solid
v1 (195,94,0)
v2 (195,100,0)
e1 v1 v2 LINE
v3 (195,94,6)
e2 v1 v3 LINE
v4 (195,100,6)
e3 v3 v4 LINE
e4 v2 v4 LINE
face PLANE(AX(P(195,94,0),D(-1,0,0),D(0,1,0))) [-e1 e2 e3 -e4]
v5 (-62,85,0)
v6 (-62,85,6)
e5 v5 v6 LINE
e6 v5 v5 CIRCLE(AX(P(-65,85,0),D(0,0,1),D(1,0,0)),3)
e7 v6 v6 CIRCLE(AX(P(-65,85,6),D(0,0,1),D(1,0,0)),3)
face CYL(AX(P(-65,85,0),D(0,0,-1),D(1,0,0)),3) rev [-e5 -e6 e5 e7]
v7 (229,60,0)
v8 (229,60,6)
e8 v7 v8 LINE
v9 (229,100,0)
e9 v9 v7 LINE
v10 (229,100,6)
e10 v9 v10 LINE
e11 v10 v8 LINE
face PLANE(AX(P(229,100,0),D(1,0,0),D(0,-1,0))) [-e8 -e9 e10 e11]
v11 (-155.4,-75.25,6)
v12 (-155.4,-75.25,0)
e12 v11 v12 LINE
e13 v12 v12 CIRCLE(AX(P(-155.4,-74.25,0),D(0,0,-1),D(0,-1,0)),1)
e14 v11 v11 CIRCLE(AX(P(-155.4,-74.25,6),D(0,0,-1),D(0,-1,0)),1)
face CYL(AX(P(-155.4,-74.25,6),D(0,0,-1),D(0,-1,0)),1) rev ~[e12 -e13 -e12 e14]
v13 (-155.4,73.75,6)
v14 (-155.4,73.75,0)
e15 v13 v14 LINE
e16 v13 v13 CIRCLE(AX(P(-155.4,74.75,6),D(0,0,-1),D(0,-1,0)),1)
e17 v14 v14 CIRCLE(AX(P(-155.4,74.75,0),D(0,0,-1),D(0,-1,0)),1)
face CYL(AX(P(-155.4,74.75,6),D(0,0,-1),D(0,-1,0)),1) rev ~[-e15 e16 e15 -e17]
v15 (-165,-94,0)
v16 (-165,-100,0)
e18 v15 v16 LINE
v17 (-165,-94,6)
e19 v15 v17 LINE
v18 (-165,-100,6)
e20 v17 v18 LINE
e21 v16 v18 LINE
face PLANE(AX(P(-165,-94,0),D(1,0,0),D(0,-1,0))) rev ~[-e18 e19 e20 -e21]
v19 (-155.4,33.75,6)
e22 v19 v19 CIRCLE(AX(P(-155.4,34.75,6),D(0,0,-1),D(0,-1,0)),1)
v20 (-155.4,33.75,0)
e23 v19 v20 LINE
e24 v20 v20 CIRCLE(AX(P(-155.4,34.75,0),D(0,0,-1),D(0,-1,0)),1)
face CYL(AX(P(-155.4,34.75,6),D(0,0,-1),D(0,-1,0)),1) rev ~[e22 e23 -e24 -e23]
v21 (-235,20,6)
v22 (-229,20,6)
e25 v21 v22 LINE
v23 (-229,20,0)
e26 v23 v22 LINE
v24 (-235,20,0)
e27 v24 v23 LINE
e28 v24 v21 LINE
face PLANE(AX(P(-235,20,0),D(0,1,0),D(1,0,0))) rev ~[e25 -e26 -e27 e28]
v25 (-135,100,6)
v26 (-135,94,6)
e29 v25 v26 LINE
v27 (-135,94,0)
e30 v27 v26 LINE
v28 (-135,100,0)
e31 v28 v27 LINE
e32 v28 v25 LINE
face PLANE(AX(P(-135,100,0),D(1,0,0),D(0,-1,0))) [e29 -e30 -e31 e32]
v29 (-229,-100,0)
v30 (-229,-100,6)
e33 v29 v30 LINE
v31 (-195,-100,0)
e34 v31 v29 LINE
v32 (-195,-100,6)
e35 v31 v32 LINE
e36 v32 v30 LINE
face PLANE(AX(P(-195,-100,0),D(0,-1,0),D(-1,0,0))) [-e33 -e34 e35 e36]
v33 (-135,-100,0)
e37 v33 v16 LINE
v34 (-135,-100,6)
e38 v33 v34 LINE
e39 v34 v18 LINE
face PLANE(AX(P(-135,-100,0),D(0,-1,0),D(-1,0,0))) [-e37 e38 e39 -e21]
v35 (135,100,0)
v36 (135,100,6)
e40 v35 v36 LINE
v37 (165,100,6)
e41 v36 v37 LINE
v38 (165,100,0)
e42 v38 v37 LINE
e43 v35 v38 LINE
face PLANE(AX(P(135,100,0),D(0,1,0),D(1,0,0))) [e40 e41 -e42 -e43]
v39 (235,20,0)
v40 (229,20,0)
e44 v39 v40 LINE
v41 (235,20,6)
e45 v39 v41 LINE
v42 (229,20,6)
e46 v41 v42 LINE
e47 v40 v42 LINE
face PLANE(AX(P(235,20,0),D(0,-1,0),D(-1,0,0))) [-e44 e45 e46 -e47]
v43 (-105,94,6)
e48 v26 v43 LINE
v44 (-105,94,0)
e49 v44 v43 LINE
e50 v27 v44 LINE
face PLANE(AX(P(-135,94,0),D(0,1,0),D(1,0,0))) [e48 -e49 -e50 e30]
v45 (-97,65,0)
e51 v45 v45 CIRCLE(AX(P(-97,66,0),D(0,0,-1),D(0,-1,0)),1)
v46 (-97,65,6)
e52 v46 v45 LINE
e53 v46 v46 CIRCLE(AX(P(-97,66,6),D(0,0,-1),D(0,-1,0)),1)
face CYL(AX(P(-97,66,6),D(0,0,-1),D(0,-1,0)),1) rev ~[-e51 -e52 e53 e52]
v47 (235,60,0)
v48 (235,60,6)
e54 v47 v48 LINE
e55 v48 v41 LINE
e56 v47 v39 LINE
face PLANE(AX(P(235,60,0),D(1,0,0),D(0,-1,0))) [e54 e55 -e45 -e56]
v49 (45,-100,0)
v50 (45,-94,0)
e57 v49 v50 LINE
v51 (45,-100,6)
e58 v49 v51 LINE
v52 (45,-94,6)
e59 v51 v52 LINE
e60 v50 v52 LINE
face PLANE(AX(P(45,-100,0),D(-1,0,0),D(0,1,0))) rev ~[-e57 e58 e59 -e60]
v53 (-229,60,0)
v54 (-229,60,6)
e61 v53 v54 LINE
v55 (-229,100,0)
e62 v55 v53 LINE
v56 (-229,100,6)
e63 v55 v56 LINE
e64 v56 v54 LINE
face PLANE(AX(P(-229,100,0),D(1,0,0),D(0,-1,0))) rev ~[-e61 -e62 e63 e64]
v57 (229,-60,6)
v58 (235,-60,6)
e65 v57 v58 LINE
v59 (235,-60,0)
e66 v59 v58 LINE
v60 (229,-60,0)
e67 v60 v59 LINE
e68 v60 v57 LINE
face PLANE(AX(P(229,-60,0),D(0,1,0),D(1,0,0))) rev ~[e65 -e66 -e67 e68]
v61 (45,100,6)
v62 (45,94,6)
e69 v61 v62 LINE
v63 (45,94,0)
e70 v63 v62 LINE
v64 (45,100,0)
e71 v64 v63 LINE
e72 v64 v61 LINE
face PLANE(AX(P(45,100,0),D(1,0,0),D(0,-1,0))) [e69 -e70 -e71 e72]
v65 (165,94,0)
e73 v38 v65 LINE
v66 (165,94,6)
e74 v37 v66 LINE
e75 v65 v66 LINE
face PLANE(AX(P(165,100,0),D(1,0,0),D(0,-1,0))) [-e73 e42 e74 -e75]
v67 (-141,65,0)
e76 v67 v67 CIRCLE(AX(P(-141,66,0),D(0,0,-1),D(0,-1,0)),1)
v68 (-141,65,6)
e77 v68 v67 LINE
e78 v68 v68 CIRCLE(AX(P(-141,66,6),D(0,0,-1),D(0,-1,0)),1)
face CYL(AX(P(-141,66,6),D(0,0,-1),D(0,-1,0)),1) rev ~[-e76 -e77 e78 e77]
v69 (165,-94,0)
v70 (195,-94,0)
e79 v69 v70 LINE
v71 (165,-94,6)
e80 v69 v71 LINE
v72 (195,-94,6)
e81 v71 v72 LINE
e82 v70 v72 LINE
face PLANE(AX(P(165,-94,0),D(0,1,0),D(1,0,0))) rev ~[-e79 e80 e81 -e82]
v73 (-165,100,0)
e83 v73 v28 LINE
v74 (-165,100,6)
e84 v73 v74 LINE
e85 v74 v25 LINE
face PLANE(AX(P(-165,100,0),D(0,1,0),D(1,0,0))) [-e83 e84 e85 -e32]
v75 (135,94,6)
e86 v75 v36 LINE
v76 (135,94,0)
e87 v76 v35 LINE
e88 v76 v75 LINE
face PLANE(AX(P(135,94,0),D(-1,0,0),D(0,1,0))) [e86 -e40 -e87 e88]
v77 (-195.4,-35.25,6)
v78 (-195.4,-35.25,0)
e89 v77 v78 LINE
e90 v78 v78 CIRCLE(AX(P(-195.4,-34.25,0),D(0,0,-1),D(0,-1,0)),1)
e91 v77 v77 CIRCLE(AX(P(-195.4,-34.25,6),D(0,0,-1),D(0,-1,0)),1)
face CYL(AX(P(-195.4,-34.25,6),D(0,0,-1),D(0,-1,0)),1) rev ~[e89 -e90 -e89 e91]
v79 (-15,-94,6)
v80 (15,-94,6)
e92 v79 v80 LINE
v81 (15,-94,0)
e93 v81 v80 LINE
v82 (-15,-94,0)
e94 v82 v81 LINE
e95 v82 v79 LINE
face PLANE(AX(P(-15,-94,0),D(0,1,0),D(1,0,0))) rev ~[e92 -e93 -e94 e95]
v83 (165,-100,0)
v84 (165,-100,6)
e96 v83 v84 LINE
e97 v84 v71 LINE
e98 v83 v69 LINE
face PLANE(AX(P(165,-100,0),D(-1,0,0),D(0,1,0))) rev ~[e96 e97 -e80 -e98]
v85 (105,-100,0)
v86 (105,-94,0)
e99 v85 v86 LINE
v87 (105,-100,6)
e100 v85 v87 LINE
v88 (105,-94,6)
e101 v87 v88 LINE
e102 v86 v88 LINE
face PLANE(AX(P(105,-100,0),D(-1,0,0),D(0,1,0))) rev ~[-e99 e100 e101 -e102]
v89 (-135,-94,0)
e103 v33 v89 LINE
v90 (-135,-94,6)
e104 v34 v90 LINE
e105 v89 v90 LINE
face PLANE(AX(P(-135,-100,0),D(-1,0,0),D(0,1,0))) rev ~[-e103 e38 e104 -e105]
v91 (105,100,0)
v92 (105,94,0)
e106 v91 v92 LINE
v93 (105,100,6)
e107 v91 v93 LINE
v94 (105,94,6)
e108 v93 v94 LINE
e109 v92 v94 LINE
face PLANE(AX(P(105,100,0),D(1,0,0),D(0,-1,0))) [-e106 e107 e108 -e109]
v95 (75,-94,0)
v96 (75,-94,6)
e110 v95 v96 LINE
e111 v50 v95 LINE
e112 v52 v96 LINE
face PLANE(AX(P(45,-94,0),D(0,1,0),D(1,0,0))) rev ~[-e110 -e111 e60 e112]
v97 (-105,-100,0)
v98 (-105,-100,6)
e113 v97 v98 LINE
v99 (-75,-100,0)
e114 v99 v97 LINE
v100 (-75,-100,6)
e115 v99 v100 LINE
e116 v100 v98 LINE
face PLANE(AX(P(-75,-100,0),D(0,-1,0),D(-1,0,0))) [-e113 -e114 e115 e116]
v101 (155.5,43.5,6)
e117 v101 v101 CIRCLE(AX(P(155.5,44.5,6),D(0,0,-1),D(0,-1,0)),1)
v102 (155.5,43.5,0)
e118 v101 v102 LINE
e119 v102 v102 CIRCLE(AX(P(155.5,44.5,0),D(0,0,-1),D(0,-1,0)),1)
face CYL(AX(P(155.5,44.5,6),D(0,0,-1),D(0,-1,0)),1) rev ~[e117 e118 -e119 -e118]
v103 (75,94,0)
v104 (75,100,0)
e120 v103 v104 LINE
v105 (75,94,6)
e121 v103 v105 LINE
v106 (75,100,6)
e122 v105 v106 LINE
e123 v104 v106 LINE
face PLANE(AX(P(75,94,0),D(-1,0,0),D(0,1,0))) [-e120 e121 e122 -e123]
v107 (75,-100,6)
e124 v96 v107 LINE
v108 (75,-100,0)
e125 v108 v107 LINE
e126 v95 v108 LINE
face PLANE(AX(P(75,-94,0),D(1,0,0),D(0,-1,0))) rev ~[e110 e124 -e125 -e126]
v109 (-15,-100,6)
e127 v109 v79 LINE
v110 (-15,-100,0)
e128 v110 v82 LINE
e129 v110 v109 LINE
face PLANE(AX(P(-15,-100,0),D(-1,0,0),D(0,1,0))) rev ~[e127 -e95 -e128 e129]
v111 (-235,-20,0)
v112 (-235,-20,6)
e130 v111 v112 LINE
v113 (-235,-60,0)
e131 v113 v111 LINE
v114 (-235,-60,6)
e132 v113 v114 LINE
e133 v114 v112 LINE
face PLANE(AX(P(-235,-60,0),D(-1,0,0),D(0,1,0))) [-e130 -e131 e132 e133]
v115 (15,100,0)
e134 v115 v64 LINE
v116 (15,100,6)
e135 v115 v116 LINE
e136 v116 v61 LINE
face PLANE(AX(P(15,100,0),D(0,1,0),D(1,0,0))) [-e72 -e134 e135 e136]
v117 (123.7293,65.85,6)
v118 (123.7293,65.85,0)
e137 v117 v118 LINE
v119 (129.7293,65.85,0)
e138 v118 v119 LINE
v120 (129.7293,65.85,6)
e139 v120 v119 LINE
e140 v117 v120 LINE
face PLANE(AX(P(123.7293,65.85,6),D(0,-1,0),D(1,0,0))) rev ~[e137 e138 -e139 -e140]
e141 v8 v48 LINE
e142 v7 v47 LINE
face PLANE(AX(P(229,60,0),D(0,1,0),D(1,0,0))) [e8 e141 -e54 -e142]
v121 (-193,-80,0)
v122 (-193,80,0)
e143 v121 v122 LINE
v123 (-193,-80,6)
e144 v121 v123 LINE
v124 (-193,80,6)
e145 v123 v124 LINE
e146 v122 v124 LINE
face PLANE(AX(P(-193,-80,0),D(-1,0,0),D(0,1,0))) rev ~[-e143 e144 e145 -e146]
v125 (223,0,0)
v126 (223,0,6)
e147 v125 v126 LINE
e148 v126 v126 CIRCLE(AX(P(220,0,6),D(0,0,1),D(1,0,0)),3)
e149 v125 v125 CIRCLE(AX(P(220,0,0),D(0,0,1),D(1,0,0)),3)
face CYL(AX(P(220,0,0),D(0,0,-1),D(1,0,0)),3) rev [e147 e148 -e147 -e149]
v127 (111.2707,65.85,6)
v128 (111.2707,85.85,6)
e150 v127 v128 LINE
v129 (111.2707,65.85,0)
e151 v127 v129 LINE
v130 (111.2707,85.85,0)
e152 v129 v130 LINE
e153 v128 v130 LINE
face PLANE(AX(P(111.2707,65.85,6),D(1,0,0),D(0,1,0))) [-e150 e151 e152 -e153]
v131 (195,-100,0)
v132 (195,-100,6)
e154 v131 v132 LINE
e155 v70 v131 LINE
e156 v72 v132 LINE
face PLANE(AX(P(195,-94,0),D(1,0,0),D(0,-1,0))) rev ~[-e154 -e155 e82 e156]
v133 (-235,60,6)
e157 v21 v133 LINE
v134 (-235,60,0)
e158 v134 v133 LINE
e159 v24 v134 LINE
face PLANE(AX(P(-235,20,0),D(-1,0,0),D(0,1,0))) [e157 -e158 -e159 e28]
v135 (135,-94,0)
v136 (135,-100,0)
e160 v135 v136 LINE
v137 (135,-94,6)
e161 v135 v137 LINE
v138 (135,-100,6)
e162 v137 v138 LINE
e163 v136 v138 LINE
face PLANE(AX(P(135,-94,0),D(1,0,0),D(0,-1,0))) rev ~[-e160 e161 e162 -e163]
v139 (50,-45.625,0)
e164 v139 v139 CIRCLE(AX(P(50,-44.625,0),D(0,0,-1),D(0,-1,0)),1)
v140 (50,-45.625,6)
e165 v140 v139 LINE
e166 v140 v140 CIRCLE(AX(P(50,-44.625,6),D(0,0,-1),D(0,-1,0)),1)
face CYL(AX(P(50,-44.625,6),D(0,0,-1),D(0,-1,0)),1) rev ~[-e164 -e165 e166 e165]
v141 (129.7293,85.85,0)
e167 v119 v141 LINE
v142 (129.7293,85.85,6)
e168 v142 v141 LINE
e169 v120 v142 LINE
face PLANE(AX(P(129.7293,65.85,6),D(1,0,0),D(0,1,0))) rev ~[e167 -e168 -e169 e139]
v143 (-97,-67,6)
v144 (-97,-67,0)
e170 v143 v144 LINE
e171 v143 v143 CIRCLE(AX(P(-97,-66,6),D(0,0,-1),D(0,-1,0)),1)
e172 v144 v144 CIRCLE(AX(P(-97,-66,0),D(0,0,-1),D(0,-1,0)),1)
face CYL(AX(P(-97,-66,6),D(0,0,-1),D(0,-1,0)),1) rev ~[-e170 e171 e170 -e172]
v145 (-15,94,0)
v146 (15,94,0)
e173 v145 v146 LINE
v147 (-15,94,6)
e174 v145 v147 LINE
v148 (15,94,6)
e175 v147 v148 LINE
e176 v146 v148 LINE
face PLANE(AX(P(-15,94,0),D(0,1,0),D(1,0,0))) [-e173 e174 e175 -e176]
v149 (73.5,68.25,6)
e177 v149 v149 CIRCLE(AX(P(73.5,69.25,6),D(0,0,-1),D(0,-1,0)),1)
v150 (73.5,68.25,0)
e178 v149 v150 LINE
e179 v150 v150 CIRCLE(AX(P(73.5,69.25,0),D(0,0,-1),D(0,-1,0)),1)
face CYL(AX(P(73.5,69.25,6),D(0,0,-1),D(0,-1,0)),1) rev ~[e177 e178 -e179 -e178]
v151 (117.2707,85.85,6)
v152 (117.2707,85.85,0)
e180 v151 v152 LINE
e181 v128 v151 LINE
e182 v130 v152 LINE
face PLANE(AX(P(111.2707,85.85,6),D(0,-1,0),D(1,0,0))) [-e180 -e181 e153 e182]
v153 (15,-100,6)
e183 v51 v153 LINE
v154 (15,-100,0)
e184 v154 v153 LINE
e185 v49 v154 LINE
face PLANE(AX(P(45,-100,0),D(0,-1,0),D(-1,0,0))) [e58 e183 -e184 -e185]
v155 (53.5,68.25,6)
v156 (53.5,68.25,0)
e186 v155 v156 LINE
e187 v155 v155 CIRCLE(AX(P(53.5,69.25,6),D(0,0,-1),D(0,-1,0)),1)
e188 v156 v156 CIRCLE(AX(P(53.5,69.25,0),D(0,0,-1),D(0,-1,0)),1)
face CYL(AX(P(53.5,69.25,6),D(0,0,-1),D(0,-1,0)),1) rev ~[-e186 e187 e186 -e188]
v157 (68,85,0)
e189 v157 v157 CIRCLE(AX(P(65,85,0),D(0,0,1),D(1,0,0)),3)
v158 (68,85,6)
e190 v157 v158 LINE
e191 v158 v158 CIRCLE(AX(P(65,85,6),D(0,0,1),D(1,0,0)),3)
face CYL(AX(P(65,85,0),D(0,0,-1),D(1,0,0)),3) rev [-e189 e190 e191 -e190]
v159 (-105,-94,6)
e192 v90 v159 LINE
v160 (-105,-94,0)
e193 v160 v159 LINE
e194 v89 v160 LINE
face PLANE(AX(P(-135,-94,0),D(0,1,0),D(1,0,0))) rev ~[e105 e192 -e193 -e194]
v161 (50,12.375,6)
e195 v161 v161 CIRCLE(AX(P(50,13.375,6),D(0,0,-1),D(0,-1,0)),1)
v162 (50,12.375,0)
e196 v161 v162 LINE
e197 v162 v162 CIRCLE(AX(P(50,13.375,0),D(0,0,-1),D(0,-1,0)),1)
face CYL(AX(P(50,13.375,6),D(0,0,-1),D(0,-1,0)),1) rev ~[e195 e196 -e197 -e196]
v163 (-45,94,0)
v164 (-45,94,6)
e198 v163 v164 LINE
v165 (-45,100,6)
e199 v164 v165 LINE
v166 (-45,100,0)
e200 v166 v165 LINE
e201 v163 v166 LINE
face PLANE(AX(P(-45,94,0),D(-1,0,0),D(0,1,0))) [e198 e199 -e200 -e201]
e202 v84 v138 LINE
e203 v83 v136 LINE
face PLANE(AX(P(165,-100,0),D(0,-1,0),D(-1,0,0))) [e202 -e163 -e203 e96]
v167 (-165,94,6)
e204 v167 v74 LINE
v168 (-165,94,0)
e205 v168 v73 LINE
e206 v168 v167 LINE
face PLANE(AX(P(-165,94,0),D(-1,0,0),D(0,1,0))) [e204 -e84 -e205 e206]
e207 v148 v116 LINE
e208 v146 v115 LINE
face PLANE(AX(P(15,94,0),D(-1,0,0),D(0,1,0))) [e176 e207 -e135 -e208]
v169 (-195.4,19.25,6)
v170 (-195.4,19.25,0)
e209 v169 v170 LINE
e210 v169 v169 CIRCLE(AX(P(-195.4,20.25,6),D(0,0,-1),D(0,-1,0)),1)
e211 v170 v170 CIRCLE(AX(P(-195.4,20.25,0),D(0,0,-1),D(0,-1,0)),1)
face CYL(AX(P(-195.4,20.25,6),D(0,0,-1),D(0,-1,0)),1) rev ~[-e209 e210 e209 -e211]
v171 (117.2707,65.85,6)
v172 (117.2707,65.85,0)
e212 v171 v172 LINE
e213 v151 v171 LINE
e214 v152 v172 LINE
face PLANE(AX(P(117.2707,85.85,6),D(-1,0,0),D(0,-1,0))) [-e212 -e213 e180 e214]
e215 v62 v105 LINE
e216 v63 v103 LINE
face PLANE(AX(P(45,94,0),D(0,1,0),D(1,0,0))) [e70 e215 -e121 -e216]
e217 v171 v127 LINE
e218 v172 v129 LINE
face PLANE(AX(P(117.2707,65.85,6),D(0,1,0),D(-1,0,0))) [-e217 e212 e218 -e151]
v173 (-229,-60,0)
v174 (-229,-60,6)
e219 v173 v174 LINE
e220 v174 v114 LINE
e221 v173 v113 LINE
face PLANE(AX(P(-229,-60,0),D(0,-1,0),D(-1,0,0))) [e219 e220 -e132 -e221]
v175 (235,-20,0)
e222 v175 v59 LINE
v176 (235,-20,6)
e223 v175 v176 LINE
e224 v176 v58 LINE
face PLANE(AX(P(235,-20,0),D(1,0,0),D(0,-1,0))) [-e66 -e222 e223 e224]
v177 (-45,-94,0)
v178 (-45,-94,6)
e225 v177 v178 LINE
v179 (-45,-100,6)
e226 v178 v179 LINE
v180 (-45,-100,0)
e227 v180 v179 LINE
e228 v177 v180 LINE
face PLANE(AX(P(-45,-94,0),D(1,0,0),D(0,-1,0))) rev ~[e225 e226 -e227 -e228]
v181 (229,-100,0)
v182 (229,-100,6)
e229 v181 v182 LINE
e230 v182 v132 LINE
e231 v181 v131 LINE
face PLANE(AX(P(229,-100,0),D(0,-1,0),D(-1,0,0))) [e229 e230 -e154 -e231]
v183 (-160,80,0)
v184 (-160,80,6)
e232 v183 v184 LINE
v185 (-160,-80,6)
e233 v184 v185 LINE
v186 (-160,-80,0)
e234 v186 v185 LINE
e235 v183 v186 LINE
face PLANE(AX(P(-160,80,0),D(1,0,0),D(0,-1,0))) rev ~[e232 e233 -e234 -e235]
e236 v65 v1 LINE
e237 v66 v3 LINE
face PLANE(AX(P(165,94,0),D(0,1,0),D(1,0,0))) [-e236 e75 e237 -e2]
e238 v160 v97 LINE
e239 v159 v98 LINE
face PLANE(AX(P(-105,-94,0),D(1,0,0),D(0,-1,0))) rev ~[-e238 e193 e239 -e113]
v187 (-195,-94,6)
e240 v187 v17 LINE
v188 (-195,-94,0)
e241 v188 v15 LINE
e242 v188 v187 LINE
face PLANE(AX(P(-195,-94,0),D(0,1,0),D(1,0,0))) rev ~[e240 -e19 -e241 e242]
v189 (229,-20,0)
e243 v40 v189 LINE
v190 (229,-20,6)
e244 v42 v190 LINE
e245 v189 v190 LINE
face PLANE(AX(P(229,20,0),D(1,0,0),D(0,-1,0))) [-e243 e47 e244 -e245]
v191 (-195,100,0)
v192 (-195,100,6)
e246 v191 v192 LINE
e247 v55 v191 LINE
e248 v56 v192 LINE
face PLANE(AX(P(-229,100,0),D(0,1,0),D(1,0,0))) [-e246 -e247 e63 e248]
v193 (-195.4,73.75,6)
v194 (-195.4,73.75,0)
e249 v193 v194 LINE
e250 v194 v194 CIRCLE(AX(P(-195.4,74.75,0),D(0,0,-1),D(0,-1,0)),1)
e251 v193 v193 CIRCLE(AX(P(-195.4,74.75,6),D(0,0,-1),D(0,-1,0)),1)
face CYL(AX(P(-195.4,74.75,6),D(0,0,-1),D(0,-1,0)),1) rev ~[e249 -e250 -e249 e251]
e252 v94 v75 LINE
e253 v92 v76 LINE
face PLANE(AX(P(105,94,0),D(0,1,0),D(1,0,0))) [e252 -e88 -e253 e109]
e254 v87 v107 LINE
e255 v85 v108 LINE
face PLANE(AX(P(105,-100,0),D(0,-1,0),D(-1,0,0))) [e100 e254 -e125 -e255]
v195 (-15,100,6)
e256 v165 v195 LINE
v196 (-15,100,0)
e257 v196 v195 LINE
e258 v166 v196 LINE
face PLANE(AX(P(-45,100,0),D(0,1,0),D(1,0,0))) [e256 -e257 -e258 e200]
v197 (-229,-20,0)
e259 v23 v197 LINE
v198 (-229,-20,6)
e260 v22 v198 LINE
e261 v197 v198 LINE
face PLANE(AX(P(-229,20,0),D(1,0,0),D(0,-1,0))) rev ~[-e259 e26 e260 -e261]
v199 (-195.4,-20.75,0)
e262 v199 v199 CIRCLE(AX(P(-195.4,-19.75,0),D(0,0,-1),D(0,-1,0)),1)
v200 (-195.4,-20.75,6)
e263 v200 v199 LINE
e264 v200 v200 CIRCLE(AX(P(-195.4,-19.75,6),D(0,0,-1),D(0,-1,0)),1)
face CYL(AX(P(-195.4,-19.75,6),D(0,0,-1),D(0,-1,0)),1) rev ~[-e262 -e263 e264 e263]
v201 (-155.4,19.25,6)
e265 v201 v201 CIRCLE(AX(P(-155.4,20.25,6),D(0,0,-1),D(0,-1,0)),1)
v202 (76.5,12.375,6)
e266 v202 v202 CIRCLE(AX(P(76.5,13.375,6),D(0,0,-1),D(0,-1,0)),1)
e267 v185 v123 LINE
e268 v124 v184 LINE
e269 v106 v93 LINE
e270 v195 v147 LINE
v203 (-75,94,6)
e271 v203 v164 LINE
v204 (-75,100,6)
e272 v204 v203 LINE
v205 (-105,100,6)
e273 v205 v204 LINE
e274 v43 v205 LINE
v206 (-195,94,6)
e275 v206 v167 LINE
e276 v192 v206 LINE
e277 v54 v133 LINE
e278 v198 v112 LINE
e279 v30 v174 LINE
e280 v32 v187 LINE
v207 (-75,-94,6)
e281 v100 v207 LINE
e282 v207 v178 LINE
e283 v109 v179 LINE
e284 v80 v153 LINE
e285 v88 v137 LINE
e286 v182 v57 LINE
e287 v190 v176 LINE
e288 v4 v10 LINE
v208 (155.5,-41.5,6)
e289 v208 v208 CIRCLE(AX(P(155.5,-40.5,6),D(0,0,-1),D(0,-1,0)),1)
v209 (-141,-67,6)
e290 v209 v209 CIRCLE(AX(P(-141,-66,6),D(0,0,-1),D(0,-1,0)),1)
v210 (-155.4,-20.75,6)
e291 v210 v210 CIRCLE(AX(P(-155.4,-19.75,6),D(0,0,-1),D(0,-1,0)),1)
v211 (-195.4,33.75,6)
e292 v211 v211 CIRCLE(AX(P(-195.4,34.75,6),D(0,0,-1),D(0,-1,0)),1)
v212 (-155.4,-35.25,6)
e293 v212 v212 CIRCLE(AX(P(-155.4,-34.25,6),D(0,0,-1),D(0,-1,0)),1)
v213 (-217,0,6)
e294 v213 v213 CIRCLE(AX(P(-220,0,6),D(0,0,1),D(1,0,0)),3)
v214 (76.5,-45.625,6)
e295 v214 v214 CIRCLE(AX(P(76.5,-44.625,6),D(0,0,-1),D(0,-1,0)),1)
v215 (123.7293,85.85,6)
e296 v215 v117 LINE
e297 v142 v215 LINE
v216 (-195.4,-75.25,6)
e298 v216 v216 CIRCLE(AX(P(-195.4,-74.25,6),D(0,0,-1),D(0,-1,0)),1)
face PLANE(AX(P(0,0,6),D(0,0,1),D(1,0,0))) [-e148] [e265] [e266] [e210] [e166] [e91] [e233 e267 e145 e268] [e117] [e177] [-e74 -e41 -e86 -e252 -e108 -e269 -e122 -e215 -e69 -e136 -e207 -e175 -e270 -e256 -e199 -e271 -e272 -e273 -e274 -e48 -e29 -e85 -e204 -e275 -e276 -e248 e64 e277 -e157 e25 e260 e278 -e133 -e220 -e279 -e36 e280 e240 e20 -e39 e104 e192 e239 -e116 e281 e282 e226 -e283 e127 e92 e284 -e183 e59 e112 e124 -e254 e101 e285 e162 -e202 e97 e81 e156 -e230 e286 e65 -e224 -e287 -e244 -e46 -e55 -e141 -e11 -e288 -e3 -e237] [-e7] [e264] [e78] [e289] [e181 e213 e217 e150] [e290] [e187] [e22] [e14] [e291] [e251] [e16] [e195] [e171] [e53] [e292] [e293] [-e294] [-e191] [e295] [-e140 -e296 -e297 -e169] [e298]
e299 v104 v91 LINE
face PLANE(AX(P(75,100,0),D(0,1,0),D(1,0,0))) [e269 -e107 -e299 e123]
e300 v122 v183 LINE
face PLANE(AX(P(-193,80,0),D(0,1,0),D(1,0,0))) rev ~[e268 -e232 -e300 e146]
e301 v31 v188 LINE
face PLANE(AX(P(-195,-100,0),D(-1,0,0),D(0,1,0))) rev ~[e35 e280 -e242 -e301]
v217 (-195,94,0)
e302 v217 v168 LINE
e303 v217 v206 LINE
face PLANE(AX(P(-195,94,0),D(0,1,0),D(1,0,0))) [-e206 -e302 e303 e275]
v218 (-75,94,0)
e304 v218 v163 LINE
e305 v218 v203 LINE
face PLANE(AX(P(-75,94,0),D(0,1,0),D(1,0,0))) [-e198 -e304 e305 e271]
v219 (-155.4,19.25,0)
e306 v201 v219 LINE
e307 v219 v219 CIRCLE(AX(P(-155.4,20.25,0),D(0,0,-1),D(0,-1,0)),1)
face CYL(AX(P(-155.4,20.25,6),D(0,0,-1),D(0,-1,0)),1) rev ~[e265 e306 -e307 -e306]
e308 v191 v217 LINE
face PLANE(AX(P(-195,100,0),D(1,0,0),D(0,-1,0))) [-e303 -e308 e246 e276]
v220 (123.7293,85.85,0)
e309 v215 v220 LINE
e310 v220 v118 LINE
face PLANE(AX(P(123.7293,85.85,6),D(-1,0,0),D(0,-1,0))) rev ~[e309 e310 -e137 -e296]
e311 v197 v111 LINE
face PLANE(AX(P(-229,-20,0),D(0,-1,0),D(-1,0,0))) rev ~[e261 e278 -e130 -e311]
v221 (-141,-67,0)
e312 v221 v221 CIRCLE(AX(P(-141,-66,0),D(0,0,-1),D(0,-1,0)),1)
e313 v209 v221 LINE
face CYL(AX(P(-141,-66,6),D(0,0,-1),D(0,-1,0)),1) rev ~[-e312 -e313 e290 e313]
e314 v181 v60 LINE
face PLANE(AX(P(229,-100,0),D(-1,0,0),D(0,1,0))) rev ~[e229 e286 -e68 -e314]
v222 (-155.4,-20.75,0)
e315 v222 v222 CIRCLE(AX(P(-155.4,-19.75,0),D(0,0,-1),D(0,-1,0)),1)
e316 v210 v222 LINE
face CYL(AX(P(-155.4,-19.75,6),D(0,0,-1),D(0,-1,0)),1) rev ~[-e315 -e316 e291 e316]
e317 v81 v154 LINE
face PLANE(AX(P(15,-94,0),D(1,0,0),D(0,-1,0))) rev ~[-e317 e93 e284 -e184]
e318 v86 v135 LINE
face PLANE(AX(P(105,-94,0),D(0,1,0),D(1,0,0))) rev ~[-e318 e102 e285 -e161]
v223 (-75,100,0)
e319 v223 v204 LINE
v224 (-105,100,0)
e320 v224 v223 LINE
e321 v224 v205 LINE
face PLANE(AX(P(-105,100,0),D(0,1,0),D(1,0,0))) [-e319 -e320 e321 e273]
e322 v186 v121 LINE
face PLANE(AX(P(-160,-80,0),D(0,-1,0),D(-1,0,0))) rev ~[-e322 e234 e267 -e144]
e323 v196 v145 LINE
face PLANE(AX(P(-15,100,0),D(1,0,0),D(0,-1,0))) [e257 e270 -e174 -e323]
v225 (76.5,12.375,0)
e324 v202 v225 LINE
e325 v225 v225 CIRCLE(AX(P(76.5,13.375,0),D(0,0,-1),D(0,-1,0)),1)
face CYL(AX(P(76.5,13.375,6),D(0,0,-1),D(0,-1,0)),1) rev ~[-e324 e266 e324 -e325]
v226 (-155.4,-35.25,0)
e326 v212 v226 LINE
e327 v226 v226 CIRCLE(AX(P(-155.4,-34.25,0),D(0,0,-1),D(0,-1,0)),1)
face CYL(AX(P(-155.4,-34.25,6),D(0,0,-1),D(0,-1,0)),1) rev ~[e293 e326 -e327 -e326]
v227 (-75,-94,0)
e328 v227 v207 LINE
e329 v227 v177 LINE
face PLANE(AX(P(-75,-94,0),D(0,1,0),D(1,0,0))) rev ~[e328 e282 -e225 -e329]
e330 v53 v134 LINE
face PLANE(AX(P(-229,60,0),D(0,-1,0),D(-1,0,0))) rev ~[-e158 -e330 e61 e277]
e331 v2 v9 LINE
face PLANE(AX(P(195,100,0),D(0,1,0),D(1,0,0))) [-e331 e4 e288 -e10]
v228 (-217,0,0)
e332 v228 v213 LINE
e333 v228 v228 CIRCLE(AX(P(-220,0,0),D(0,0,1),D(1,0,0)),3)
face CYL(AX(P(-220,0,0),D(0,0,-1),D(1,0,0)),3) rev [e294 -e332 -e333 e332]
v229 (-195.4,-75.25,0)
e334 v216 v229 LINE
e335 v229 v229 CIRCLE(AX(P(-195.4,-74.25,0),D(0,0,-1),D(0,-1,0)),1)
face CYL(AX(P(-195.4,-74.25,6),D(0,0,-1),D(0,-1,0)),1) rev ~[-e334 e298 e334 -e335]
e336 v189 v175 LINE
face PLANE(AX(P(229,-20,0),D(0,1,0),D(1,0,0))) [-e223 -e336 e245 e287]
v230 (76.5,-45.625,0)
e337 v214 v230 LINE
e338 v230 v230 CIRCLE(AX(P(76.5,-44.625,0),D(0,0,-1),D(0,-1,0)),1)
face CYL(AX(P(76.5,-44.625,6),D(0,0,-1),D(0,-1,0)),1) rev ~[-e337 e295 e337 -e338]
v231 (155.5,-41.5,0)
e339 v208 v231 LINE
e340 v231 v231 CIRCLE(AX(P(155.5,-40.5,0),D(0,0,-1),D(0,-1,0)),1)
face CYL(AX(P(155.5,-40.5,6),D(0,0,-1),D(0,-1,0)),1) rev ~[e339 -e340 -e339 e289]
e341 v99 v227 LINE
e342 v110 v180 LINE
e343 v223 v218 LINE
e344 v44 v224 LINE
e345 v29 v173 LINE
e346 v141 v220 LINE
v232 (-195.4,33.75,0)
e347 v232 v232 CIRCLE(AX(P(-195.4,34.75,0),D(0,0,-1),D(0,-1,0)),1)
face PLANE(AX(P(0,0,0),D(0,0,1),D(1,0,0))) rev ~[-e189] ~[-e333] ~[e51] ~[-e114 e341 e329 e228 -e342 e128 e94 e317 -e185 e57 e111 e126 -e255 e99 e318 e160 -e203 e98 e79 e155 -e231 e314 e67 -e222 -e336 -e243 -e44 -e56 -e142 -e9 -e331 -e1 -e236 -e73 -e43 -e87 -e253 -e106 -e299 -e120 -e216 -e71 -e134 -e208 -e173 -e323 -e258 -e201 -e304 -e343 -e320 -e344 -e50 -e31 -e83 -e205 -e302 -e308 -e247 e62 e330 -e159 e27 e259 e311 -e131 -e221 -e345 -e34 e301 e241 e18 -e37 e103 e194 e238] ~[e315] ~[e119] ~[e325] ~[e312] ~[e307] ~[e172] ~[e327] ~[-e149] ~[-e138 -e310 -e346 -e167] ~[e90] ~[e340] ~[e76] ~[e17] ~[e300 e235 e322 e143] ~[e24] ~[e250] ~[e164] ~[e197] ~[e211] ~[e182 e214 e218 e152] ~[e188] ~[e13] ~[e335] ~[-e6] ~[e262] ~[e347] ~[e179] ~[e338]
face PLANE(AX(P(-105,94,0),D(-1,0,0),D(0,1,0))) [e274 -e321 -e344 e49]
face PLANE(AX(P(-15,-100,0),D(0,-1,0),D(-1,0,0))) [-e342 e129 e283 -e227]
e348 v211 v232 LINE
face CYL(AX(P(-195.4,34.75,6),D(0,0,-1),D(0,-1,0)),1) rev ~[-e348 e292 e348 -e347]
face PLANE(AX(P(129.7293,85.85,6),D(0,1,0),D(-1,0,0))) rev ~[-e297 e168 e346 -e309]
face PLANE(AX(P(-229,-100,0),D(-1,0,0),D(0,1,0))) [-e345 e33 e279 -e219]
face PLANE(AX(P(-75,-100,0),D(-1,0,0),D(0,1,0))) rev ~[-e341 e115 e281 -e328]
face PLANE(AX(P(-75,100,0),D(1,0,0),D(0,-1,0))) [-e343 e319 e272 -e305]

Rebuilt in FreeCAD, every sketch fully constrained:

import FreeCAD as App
import Part
import Sketcher


def add_polygon(sketch, points):
    """Adds a closed chain of lines whose ends are joined by coincident constraints."""
    first, n = sketch.GeometryCount, len(points)
    for a, b in zip(points, points[1:] + points[:1]):
        sketch.addGeometry(Part.LineSegment(App.Vector(*a, 0), App.Vector(*b, 0)), False)
    for i in range(n):
        sketch.addConstraint(Sketcher.Constraint("Coincident", first + i, 2, first + (i + 1) % n, 1))

doc = App.newDocument("Part")
params = doc.addObject("Spreadsheet::Sheet", "Params")
for row, (alias, value) in enumerate([
    ("sketch1_diameter", "6 mm"),
    ("sketch1_width", "6 mm"),
    ("sketch1_width2", "30 mm"),
    ("sketch1_height", "40 mm"),
    ("sketch1_width3", "34 mm"),
    ("pad1_length", "6 mm"),
    ("sketch2_width", "33 mm"),
    ("sketch2_height", "160 mm"),
    ("pocket1_length", "6 mm"),
    ("sketch3_diameter", "2 mm"),
    ("hole_diameter", "2 mm"),
    ("hole_depth", "6 mm"),
    ("sketch4_width", "6 mm"),
    ("sketch4_height", "20 mm"),
    ("pocket2_length", "6 mm"),
], start=1):
    params.set(f"A{row}", alias)
    params.set(f"B{row}", "=" + value)
    params.setAlias(f"B{row}", alias)

body = doc.addObject("PartDesign::Body", "Body")

# Sketch on XY plane
sketch1 = doc.addObject("Sketcher::SketchObject", "Sketch")
body.addObject(sketch1)
sketch1.AttachmentSupport = (doc.XY_Plane, [""])
sketch1.MapMode = "FlatFace"
add_polygon(sketch1, [(-195, 100), (-229, 100), (-229, 60), (-235, 60), (-235, 20), (-229, 20), (-229, -20), (-235, -20), (-235, -60), (-229, -60), (-229, -100), (-195, -100), (-195, -94), (-165, -94), (-165, -100), (-135, -100), (-135, -94), (-105, -94), (-105, -100), (-75, -100), (-75, -94), (-45, -94), (-45, -100), (-15, -100), (-15, -94), (15, -94), (15, -100), (45, -100), (45, -94), (75, -94), (75, -100), (105, -100), (105, -94), (135, -94), (135, -100), (165, -100), (165, -94), (195, -94), (195, -100), (229, -100), (229, -60), (235, -60), (235, -20), (229, -20), (229, 20), (235, 20), (235, 60), (229, 60), (229, 100), (195, 100), (195, 94), (165, 94), (165, 100), (135, 100), (135, 94), (105, 94), (105, 100), (75, 100), (75, 94), (45, 94), (45, 100), (15, 100), (15, 94), (-15, 94), (-15, 100), (-45, 100), (-45, 94), (-75, 94), (-75, 100), (-105, 100), (-105, 94), (-135, 94), (-135, 100), (-165, 100), (-165, 94), (-195, 94)])  # lines 0-75
sketch1.addGeometry(Part.Circle(App.Vector(-220, 0, 0), App.Vector(0, 0, 1), 3), False)  # 76
sketch1.addGeometry(Part.Circle(App.Vector(-65, 85, 0), App.Vector(0, 0, 1), 3), False)  # 77
sketch1.addGeometry(Part.Circle(App.Vector(220, 0, 0), App.Vector(0, 0, 1), 3), False)  # 78
sketch1.addGeometry(Part.Circle(App.Vector(65, 85, 0), App.Vector(0, 0, 1), 3), False)  # 79
sketch1.addConstraint(Sketcher.Constraint("Horizontal", 0))
sketch1.addConstraint(Sketcher.Constraint("Vertical", 1))
sketch1.addConstraint(Sketcher.Constraint("Horizontal", 2))
sketch1.addConstraint(Sketcher.Constraint("Vertical", 3))
sketch1.addConstraint(Sketcher.Constraint("Horizontal", 4))
sketch1.addConstraint(Sketcher.Constraint("Vertical", 5))
sketch1.addConstraint(Sketcher.Constraint("Horizontal", 6))
sketch1.addConstraint(Sketcher.Constraint("Vertical", 7))
sketch1.addConstraint(Sketcher.Constraint("Horizontal", 8))
sketch1.addConstraint(Sketcher.Constraint("Vertical", 9))
sketch1.addConstraint(Sketcher.Constraint("Horizontal", 10))
sketch1.addConstraint(Sketcher.Constraint("Vertical", 11))
sketch1.addConstraint(Sketcher.Constraint("Horizontal", 12))
sketch1.addConstraint(Sketcher.Constraint("Vertical", 13))
sketch1.addConstraint(Sketcher.Constraint("Horizontal", 14))
sketch1.addConstraint(Sketcher.Constraint("Vertical", 15))
sketch1.addConstraint(Sketcher.Constraint("Horizontal", 16))
sketch1.addConstraint(Sketcher.Constraint("Vertical", 17))
sketch1.addConstraint(Sketcher.Constraint("Horizontal", 18))
sketch1.addConstraint(Sketcher.Constraint("Vertical", 19))
sketch1.addConstraint(Sketcher.Constraint("Horizontal", 20))
sketch1.addConstraint(Sketcher.Constraint("Vertical", 21))
sketch1.addConstraint(Sketcher.Constraint("Horizontal", 22))
sketch1.addConstraint(Sketcher.Constraint("Vertical", 23))
sketch1.addConstraint(Sketcher.Constraint("Horizontal", 24))
sketch1.addConstraint(Sketcher.Constraint("Vertical", 25))
sketch1.addConstraint(Sketcher.Constraint("Horizontal", 26))
sketch1.addConstraint(Sketcher.Constraint("Vertical", 27))
sketch1.addConstraint(Sketcher.Constraint("Horizontal", 28))
sketch1.addConstraint(Sketcher.Constraint("Vertical", 29))
sketch1.addConstraint(Sketcher.Constraint("Horizontal", 30))
sketch1.addConstraint(Sketcher.Constraint("Vertical", 31))
sketch1.addConstraint(Sketcher.Constraint("Horizontal", 32))
sketch1.addConstraint(Sketcher.Constraint("Vertical", 33))
sketch1.addConstraint(Sketcher.Constraint("Horizontal", 34))
sketch1.addConstraint(Sketcher.Constraint("Vertical", 35))
sketch1.addConstraint(Sketcher.Constraint("Horizontal", 36))
sketch1.addConstraint(Sketcher.Constraint("Vertical", 37))
sketch1.addConstraint(Sketcher.Constraint("Horizontal", 38))
sketch1.addConstraint(Sketcher.Constraint("Vertical", 39))
sketch1.addConstraint(Sketcher.Constraint("Horizontal", 40))
sketch1.addConstraint(Sketcher.Constraint("Vertical", 41))
sketch1.addConstraint(Sketcher.Constraint("Horizontal", 42))
sketch1.addConstraint(Sketcher.Constraint("Vertical", 43))
sketch1.addConstraint(Sketcher.Constraint("Horizontal", 44))
sketch1.addConstraint(Sketcher.Constraint("Vertical", 45))
sketch1.addConstraint(Sketcher.Constraint("Horizontal", 46))
sketch1.addConstraint(Sketcher.Constraint("Vertical", 47))
sketch1.addConstraint(Sketcher.Constraint("Horizontal", 48))
sketch1.addConstraint(Sketcher.Constraint("Vertical", 49))
sketch1.addConstraint(Sketcher.Constraint("Horizontal", 50))
sketch1.addConstraint(Sketcher.Constraint("Vertical", 51))
sketch1.addConstraint(Sketcher.Constraint("Horizontal", 52))
sketch1.addConstraint(Sketcher.Constraint("Vertical", 53))
sketch1.addConstraint(Sketcher.Constraint("Horizontal", 54))
sketch1.addConstraint(Sketcher.Constraint("Vertical", 55))
sketch1.addConstraint(Sketcher.Constraint("Horizontal", 56))
sketch1.addConstraint(Sketcher.Constraint("Vertical", 57))
sketch1.addConstraint(Sketcher.Constraint("Horizontal", 58))
sketch1.addConstraint(Sketcher.Constraint("Vertical", 59))
sketch1.addConstraint(Sketcher.Constraint("Horizontal", 60))
sketch1.addConstraint(Sketcher.Constraint("Vertical", 61))
sketch1.addConstraint(Sketcher.Constraint("Horizontal", 62))
sketch1.addConstraint(Sketcher.Constraint("Vertical", 63))
sketch1.addConstraint(Sketcher.Constraint("Horizontal", 64))
sketch1.addConstraint(Sketcher.Constraint("Vertical", 65))
sketch1.addConstraint(Sketcher.Constraint("Horizontal", 66))
sketch1.addConstraint(Sketcher.Constraint("Vertical", 67))
sketch1.addConstraint(Sketcher.Constraint("Horizontal", 68))
sketch1.addConstraint(Sketcher.Constraint("Vertical", 69))
sketch1.addConstraint(Sketcher.Constraint("Horizontal", 70))
sketch1.addConstraint(Sketcher.Constraint("Vertical", 71))
sketch1.addConstraint(Sketcher.Constraint("Horizontal", 72))
sketch1.addConstraint(Sketcher.Constraint("Vertical", 73))
sketch1.addConstraint(Sketcher.Constraint("Horizontal", 74))
sketch1.addConstraint(Sketcher.Constraint("Vertical", 75))
sketch1.addConstraint(Sketcher.Constraint("Equal", 76, 77))
sketch1.addConstraint(Sketcher.Constraint("Equal", 77, 78))
sketch1.addConstraint(Sketcher.Constraint("Equal", 78, 79))
sketch1.addConstraint(Sketcher.Constraint("Symmetric", 76, 3, 78, 3, -1, 1))
sketch1.addConstraint(Sketcher.Constraint("Symmetric", 0, 2, 38, 2, -1, 1))
sketch1.addConstraint(Sketcher.Constraint("Symmetric", 2, 2, 40, 2, -1, 1))
sketch1.addConstraint(Sketcher.Constraint("Symmetric", 4, 2, 42, 2, -1, 1))
sketch1.addConstraint(Sketcher.Constraint("Symmetric", 6, 2, 44, 2, -1, 1))
sketch1.addConstraint(Sketcher.Constraint("Symmetric", 8, 2, 46, 2, -1, 1))
sketch1.addConstraint(Sketcher.Constraint("Symmetric", 10, 2, 48, 2, -1, 1))
sketch1.addConstraint(Sketcher.Constraint("Symmetric", 12, 2, 50, 2, -1, 1))
sketch1.addConstraint(Sketcher.Constraint("Symmetric", 14, 2, 52, 2, -1, 1))
sketch1.addConstraint(Sketcher.Constraint("Symmetric", 16, 2, 54, 2, -1, 1))
sketch1.addConstraint(Sketcher.Constraint("Symmetric", 18, 2, 56, 2, -1, 1))
sketch1.addConstraint(Sketcher.Constraint("Symmetric", 20, 2, 58, 2, -1, 1))
sketch1.addConstraint(Sketcher.Constraint("Symmetric", 22, 2, 60, 2, -1, 1))
sketch1.addConstraint(Sketcher.Constraint("Symmetric", 24, 2, 62, 2, -1, 1))
sketch1.addConstraint(Sketcher.Constraint("Symmetric", 26, 2, 64, 2, -1, 1))
sketch1.addConstraint(Sketcher.Constraint("Symmetric", 28, 2, 66, 2, -1, 1))
sketch1.addConstraint(Sketcher.Constraint("Symmetric", 30, 2, 68, 2, -1, 1))
sketch1.addConstraint(Sketcher.Constraint("Symmetric", 32, 2, 70, 2, -1, 1))
sketch1.addConstraint(Sketcher.Constraint("Symmetric", 34, 2, 72, 2, -1, 1))
sketch1.addConstraint(Sketcher.Constraint("Symmetric", 36, 2, 74, 2, -1, 1))
sketch1.addConstraint(Sketcher.Constraint("Symmetric", 77, 3, 79, 3, -2))
sketch1.addConstraint(Sketcher.Constraint("Symmetric", 22, 2, 25, 2, -2))
sketch1.addConstraint(Sketcher.Constraint("Symmetric", 20, 2, 27, 2, -2))
sketch1.addConstraint(Sketcher.Constraint("Symmetric", 18, 2, 29, 2, -2))
sketch1.addConstraint(Sketcher.Constraint("Symmetric", 16, 2, 31, 2, -2))
sketch1.addConstraint(Sketcher.Constraint("Symmetric", 14, 2, 33, 2, -2))
sketch1.addConstraint(Sketcher.Constraint("Symmetric", 12, 2, 35, 2, -2))
sketch1.addConstraint(Sketcher.Constraint("Symmetric", 10, 2, 37, 2, -2))
sketch1.addConstraint(Sketcher.Constraint("Symmetric", 8, 2, 39, 2, -2))
sketch1.addConstraint(Sketcher.Constraint("Symmetric", 6, 2, 41, 2, -2))
sketch1.addConstraint(Sketcher.Constraint("PointOnObject", 76, 3, -1))
sketch1.addConstraint(Sketcher.Constraint("Horizontal", 10, 2, 13, 2))
sketch1.addConstraint(Sketcher.Constraint("Horizontal", 12, 2, 15, 2))
sketch1.addConstraint(Sketcher.Constraint("Horizontal", 14, 2, 17, 2))
sketch1.addConstraint(Sketcher.Constraint("Horizontal", 16, 2, 19, 2))
sketch1.addConstraint(Sketcher.Constraint("Horizontal", 18, 2, 21, 2))
sketch1.addConstraint(Sketcher.Constraint("Horizontal", 20, 2, 23, 2))
sketch1.addConstraint(Sketcher.Constraint("Vertical", 1, 2, 4, 2))
sketch1.addConstraint(Sketcher.Constraint("Equal", 12, 14))
sketch1.addConstraint(Sketcher.Constraint("Equal", 14, 16))
sketch1.addConstraint(Sketcher.Constraint("Equal", 16, 18))
sketch1.addConstraint(Sketcher.Constraint("Equal", 18, 20))
sketch1.addConstraint(Sketcher.Constraint("Equal", 20, 22))
sketch1.addConstraint(Sketcher.Constraint("Equal", 22, 24))
sketch1.addConstraint(Sketcher.Constraint("Equal", 1, 3))
sketch1.addConstraint(Sketcher.Constraint("Equal", 3, 5))
sketch1.addConstraint(Sketcher.Constraint("Equal", 46, 11))
sketch1.addConstraint(Sketcher.Constraint("Diameter", 76, 6.0))
sketch1.addConstraint(Sketcher.Constraint("DistanceX", 2, 2, 2, 1, 6.0))
sketch1.addConstraint(Sketcher.Constraint("DistanceX", 12, 1, 12, 2, 30.0))
sketch1.addConstraint(Sketcher.Constraint("DistanceY", 1, 2, 1, 1, 40.0))
sketch1.addConstraint(Sketcher.Constraint("DistanceX", 0, 2, 0, 1, 34.0))
sketch1.addConstraint(Sketcher.Constraint("DistanceX", 76, 3, -1, 1, 220.0))
sketch1.addConstraint(Sketcher.Constraint("DistanceX", 77, 3, -1, 1, 65.0))
sketch1.addConstraint(Sketcher.Constraint("DistanceY", -1, 1, 77, 3, 85.0))
sketch1.setExpression("Constraints[202]", "Params.sketch1_diameter")
sketch1.setExpression("Constraints[203]", "Params.sketch1_width")
sketch1.setExpression("Constraints[204]", "Params.sketch1_width2")
sketch1.setExpression("Constraints[205]", "Params.sketch1_height")
sketch1.setExpression("Constraints[206]", "Params.sketch1_width3")
pad1 = doc.addObject("PartDesign::Pad", "Pad")
body.addObject(pad1)
pad1.Profile = sketch1
pad1.setExpression("Length", "Params.pad1_length")

# Sketch on XY plane
sketch2 = doc.addObject("Sketcher::SketchObject", "Sketch001")
body.addObject(sketch2)
sketch2.AttachmentSupport = (doc.XY_Plane, [""])
sketch2.MapMode = "FlatFace"
add_polygon(sketch2, [(-160, 80), (-160, -80), (-193, -80), (-193, 80)])  # lines 0-3
sketch2.addConstraint(Sketcher.Constraint("Vertical", 0))
sketch2.addConstraint(Sketcher.Constraint("Horizontal", 1))
sketch2.addConstraint(Sketcher.Constraint("Vertical", 2))
sketch2.addConstraint(Sketcher.Constraint("Horizontal", 3))
sketch2.addConstraint(Sketcher.Constraint("DistanceX", 1, 2, 1, 1, 33.0))
sketch2.addConstraint(Sketcher.Constraint("DistanceY", 0, 2, 0, 1, 160.0))
sketch2.addConstraint(Sketcher.Constraint("DistanceX", 0, 2, -1, 1, 160.0))
sketch2.addConstraint(Sketcher.Constraint("DistanceY", 0, 2, -1, 1, 80.0))
sketch2.setExpression("Constraints[8]", "Params.sketch2_width")
sketch2.setExpression("Constraints[9]", "Params.sketch2_height")
pocket1 = doc.addObject("PartDesign::Pocket", "Pocket")
body.addObject(pocket1)
pocket1.Profile = sketch2
pocket1.setExpression("Length", "Params.pocket1_length")
pocket1.Reversed = True

# Sketch on XY plane
sketch3 = doc.addObject("Sketcher::SketchObject", "Sketch002")
body.addObject(sketch3)
sketch3.AttachmentSupport = (doc.XY_Plane, [""])
sketch3.MapMode = "FlatFace"
sketch3.AttachmentOffset = App.Placement(App.Vector(0, 0, 6), App.Rotation())
sketch3.addGeometry(Part.Circle(App.Vector(-195.4, 74.8, 0), App.Vector(0, 0, 1), 1), False)
sketch3.addGeometry(Part.Circle(App.Vector(-195.4, 34.8, 0), App.Vector(0, 0, 1), 1), False)
sketch3.addGeometry(Part.Circle(App.Vector(-155.4, 34.8, 0), App.Vector(0, 0, 1), 1), False)
sketch3.addGeometry(Part.Circle(App.Vector(-155.4, 74.8, 0), App.Vector(0, 0, 1), 1), False)
sketch3.addGeometry(Part.Circle(App.Vector(-195.4, 20.2, 0), App.Vector(0, 0, 1), 1), False)
sketch3.addGeometry(Part.Circle(App.Vector(-155.4, 20.2, 0), App.Vector(0, 0, 1), 1), False)
sketch3.addGeometry(Part.Circle(App.Vector(-155.4, -19.8, 0), App.Vector(0, 0, 1), 1), False)
sketch3.addGeometry(Part.Circle(App.Vector(-195.4, -19.8, 0), App.Vector(0, 0, 1), 1), False)
sketch3.addGeometry(Part.Circle(App.Vector(-195.4, -34.2, 0), App.Vector(0, 0, 1), 1), False)
sketch3.addGeometry(Part.Circle(App.Vector(-155.4, -34.2, 0), App.Vector(0, 0, 1), 1), False)
sketch3.addGeometry(Part.Circle(App.Vector(-155.4, -74.2, 0), App.Vector(0, 0, 1), 1), False)
sketch3.addGeometry(Part.Circle(App.Vector(-195.4, -74.2, 0), App.Vector(0, 0, 1), 1), False)
sketch3.addGeometry(Part.Circle(App.Vector(-141, -66, 0), App.Vector(0, 0, 1), 1), False)
sketch3.addGeometry(Part.Circle(App.Vector(-97, -66, 0), App.Vector(0, 0, 1), 1), False)
sketch3.addGeometry(Part.Circle(App.Vector(-97, 66, 0), App.Vector(0, 0, 1), 1), False)
sketch3.addGeometry(Part.Circle(App.Vector(-141, 66, 0), App.Vector(0, 0, 1), 1), False)
sketch3.addGeometry(Part.Circle(App.Vector(53.5, 69.2, 0), App.Vector(0, 0, 1), 1), False)
sketch3.addGeometry(Part.Circle(App.Vector(73.5, 69.2, 0), App.Vector(0, 0, 1), 1), False)
sketch3.addGeometry(Part.Circle(App.Vector(76.5, 13.4, 0), App.Vector(0, 0, 1), 1), False)
sketch3.addGeometry(Part.Circle(App.Vector(50, 13.4, 0), App.Vector(0, 0, 1), 1), False)
sketch3.addGeometry(Part.Circle(App.Vector(76.5, -44.6, 0), App.Vector(0, 0, 1), 1), False)
sketch3.addGeometry(Part.Circle(App.Vector(50, -44.6, 0), App.Vector(0, 0, 1), 1), False)
sketch3.addGeometry(Part.Circle(App.Vector(155.5, -40.5, 0), App.Vector(0, 0, 1), 1), False)
sketch3.addGeometry(Part.Circle(App.Vector(155.5, 44.5, 0), App.Vector(0, 0, 1), 1), False)
sketch3.addConstraint(Sketcher.Constraint("Equal", 0, 1))
sketch3.addConstraint(Sketcher.Constraint("Equal", 1, 2))
sketch3.addConstraint(Sketcher.Constraint("Equal", 2, 3))
sketch3.addConstraint(Sketcher.Constraint("Equal", 3, 4))
sketch3.addConstraint(Sketcher.Constraint("Equal", 4, 5))
sketch3.addConstraint(Sketcher.Constraint("Equal", 5, 6))
sketch3.addConstraint(Sketcher.Constraint("Equal", 6, 7))
sketch3.addConstraint(Sketcher.Constraint("Equal", 7, 8))
sketch3.addConstraint(Sketcher.Constraint("Equal", 8, 9))
sketch3.addConstraint(Sketcher.Constraint("Equal", 9, 10))
sketch3.addConstraint(Sketcher.Constraint("Equal", 10, 11))
sketch3.addConstraint(Sketcher.Constraint("Equal", 11, 12))
sketch3.addConstraint(Sketcher.Constraint("Equal", 12, 13))
sketch3.addConstraint(Sketcher.Constraint("Equal", 13, 14))
sketch3.addConstraint(Sketcher.Constraint("Equal", 14, 15))
sketch3.addConstraint(Sketcher.Constraint("Equal", 15, 16))
sketch3.addConstraint(Sketcher.Constraint("Equal", 16, 17))
sketch3.addConstraint(Sketcher.Constraint("Equal", 17, 18))
sketch3.addConstraint(Sketcher.Constraint("Equal", 18, 19))
sketch3.addConstraint(Sketcher.Constraint("Equal", 19, 20))
sketch3.addConstraint(Sketcher.Constraint("Equal", 20, 21))
sketch3.addConstraint(Sketcher.Constraint("Equal", 21, 22))
sketch3.addConstraint(Sketcher.Constraint("Equal", 22, 23))
sketch3.addConstraint(Sketcher.Constraint("Symmetric", 13, 3, 14, 3, -1))
sketch3.addConstraint(Sketcher.Constraint("Symmetric", 12, 3, 15, 3, -1))
sketch3.addConstraint(Sketcher.Constraint("Horizontal", 1, 3, 2, 3))
sketch3.addConstraint(Sketcher.Constraint("Horizontal", 0, 3, 3, 3))
sketch3.addConstraint(Sketcher.Constraint("Horizontal", 4, 3, 5, 3))
sketch3.addConstraint(Sketcher.Constraint("Horizontal", 6, 3, 7, 3))
sketch3.addConstraint(Sketcher.Constraint("Horizontal", 8, 3, 9, 3))
sketch3.addConstraint(Sketcher.Constraint("Horizontal", 10, 3, 11, 3))
sketch3.addConstraint(Sketcher.Constraint("Horizontal", 12, 3, 13, 3))
sketch3.addConstraint(Sketcher.Constraint("Horizontal", 16, 3, 17, 3))
sketch3.addConstraint(Sketcher.Constraint("Horizontal", 18, 3, 19, 3))
sketch3.addConstraint(Sketcher.Constraint("Horizontal", 20, 3, 21, 3))
sketch3.addConstraint(Sketcher.Constraint("Vertical", 0, 3, 1, 3))
sketch3.addConstraint(Sketcher.Constraint("Vertical", 2, 3, 3, 3))
sketch3.addConstraint(Sketcher.Constraint("Vertical", 1, 3, 4, 3))
sketch3.addConstraint(Sketcher.Constraint("Vertical", 3, 3, 5, 3))
sketch3.addConstraint(Sketcher.Constraint("Vertical", 5, 3, 6, 3))
sketch3.addConstraint(Sketcher.Constraint("Vertical", 4, 3, 7, 3))
sketch3.addConstraint(Sketcher.Constraint("Vertical", 7, 3, 8, 3))
sketch3.addConstraint(Sketcher.Constraint("Vertical", 6, 3, 9, 3))
sketch3.addConstraint(Sketcher.Constraint("Vertical", 9, 3, 10, 3))
sketch3.addConstraint(Sketcher.Constraint("Vertical", 8, 3, 11, 3))
sketch3.addConstraint(Sketcher.Constraint("Vertical", 18, 3, 20, 3))
sketch3.addConstraint(Sketcher.Constraint("Vertical", 19, 3, 21, 3))
sketch3.addConstraint(Sketcher.Constraint("Vertical", 22, 3, 23, 3))
sketch3.addConstraint(Sketcher.Constraint("Diameter", 0, 2.0))
sketch3.addConstraint(Sketcher.Constraint("DistanceX", 12, 3, -1, 1, 141.0))
sketch3.addConstraint(Sketcher.Constraint("DistanceY", 12, 3, -1, 1, 66.0))
sketch3.addConstraint(Sketcher.Constraint("DistanceX", 13, 3, -1, 1, 97.0))
sketch3.addConstraint(Sketcher.Constraint("DistanceX", -1, 1, 19, 3, 50.0))
sketch3.addConstraint(Sketcher.Constraint("DistanceY", 1, 3, 0, 3, 40.0))
sketch3.addConstraint(Sketcher.Constraint("DistanceX", 1, 3, 2, 3, 40.0))
sketch3.addConstraint(Sketcher.Constraint("DistanceY", 6, 3, 5, 3, 40.0))
sketch3.addConstraint(Sketcher.Constraint("DistanceY", 8, 3, 1, 3, 69.0))
sketch3.addConstraint(Sketcher.Constraint("DistanceY", 10, 3, 9, 3, 40.0))
sketch3.addConstraint(Sketcher.Constraint("DistanceX", 16, 3, 17, 3, 20.0))
sketch3.addConstraint(Sketcher.Constraint("DistanceX", 17, 3, 18, 3, 3.0))
sketch3.addConstraint(Sketcher.Constraint("DistanceY", 20, 3, 18, 3, 58.0))
sketch3.addConstraint(Sketcher.Constraint("DistanceX", 20, 3, 22, 3, 79.0))
sketch3.addConstraint(Sketcher.Constraint("DistanceY", 22, 3, 23, 3, 85.0))
sketch3.addConstraint(Sketcher.Constraint("DistanceX", 0, 3, -1, 1, 195.4))
sketch3.addConstraint(Sketcher.Constraint("DistanceX", -1, 1, 16, 3, 53.5))
sketch3.addConstraint(Sketcher.Constraint("DistanceY", 22, 3, -1, 1, 40.5))
sketch3.addConstraint(Sketcher.Constraint("DistanceY", 4, 3, 1, 3, 14.5))
sketch3.addConstraint(Sketcher.Constraint("DistanceY", 16, 3, 3, 3, 5.5))
sketch3.addConstraint(Sketcher.Constraint("DistanceY", -1, 1, 0, 3, 74.75))
sketch3.addConstraint(Sketcher.Constraint("DistanceY", -1, 1, 18, 3, 13.375))
sketch3.setExpression("Constraints[48]", "Params.sketch3_diameter")
doc.recompute()
hole = doc.addObject("PartDesign::Hole", "Hole")
body.addObject(hole)
hole.Profile = sketch3
hole.ThreadType = "None"
hole.setExpression("Diameter", "Params.hole_diameter")
hole.DepthType = "Dimension"
hole.setExpression("Depth", "Params.hole_depth")
hole.DrillPoint = "Angled"
hole.DrillPointAngle = 90

# Sketch on XY plane
sketch4 = doc.addObject("Sketcher::SketchObject", "Sketch003")
body.addObject(sketch4)
sketch4.AttachmentSupport = (doc.XY_Plane, [""])
sketch4.MapMode = "FlatFace"
sketch4.AttachmentOffset = App.Placement(App.Vector(0, 0, 6), App.Rotation())
add_polygon(sketch4, [(111, 66), (117, 66), (117, 86), (111, 86)])  # lines 0-3
add_polygon(sketch4, [(124, 86), (124, 66), (130, 66), (130, 86)])  # lines 4-7
sketch4.addConstraint(Sketcher.Constraint("Horizontal", 0))
sketch4.addConstraint(Sketcher.Constraint("Vertical", 1))
sketch4.addConstraint(Sketcher.Constraint("Horizontal", 2))
sketch4.addConstraint(Sketcher.Constraint("Vertical", 3))
sketch4.addConstraint(Sketcher.Constraint("Vertical", 4))
sketch4.addConstraint(Sketcher.Constraint("Horizontal", 5))
sketch4.addConstraint(Sketcher.Constraint("Vertical", 6))
sketch4.addConstraint(Sketcher.Constraint("Horizontal", 7))
sketch4.addConstraint(Sketcher.Constraint("Horizontal", 3, 2, 4, 2))
sketch4.addConstraint(Sketcher.Constraint("Horizontal", 2, 2, 6, 2))
sketch4.addConstraint(Sketcher.Constraint("Equal", 2, 5))
sketch4.addConstraint(Sketcher.Constraint("DistanceX", 0, 1, 0, 2, 6.0))
sketch4.addConstraint(Sketcher.Constraint("DistanceY", 1, 1, 1, 2, 20.0))
sketch4.addConstraint(Sketcher.Constraint("DistanceY", -1, 1, 0, 2, 65.85))
sketch4.addConstraint(Sketcher.Constraint("DistanceX", -1, 1, 0, 2, 117.2707))
sketch4.addConstraint(Sketcher.Constraint("DistanceX", -1, 1, 4, 2, 123.7293))
sketch4.setExpression("Constraints[19]", "Params.sketch4_width")
sketch4.setExpression("Constraints[20]", "Params.sketch4_height")
pocket2 = doc.addObject("PartDesign::Pocket", "Pocket001")
body.addObject(pocket2)
pocket2.Profile = sketch4
pocket2.setExpression("Length", "Params.pocket2_length")

doc.recompute()
